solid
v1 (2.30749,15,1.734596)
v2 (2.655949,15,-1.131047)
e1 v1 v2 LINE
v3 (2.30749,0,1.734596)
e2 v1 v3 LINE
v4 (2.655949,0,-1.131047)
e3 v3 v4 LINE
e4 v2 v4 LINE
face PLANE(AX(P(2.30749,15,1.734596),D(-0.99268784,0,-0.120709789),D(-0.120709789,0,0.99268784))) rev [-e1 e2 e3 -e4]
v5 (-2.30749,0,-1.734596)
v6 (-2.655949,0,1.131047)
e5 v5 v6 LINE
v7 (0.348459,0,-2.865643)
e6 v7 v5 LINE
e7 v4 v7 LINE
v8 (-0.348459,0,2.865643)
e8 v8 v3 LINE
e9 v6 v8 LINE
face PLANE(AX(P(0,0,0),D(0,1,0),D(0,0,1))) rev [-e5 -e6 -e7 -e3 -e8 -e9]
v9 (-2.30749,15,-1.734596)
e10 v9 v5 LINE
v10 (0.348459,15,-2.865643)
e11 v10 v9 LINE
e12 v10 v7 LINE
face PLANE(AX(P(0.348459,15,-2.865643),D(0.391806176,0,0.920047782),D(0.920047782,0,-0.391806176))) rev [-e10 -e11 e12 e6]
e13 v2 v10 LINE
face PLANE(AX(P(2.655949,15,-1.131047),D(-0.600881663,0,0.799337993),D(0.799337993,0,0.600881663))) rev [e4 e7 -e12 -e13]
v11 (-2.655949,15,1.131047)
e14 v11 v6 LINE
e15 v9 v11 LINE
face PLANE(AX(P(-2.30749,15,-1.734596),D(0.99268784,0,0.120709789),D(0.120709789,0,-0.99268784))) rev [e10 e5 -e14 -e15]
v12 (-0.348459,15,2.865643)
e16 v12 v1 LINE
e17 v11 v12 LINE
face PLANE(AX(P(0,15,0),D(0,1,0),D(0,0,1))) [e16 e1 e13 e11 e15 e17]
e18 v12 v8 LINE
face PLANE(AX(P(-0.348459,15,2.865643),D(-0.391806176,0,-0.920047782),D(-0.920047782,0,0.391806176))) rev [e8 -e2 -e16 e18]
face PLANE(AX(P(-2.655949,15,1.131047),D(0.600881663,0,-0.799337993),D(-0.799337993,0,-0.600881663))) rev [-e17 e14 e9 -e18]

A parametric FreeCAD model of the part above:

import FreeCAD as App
import Part
import Sketcher
Q = App.Units.Quantity


def add_polygon(sketch, points):
    """Adds a closed chain of lines whose ends are joined by coincident constraints."""
    first, n = sketch.GeometryCount, len(points)
    for a, b in zip(points, points[1:] + points[:1]):
        sketch.addGeometry(Part.LineSegment(App.Vector(*a, 0), App.Vector(*b, 0)), False)
    for i in range(n):
        sketch.addConstraint(Sketcher.Constraint("Coincident", first + i, 2, first + (i + 1) % n, 1))

doc = App.newDocument("Part")
body = doc.addObject("PartDesign::Body", "Body")

sketch1 = body.newObject("Sketcher::SketchObject", "Sketch")
sketch1.AttachmentSupport = (doc.getObject("XZ_Plane"), [""])
sketch1.MapMode = "FlatFace"
add_polygon(sketch1, [(2.30749, 1.734596), (2.655949, -1.131047), (0.348459, -2.865643), (-2.30749, -1.734596), (-2.655949, 1.131047), (-0.348459, 2.865643)])
sketch1.addConstraint([
    Sketcher.Constraint("Symmetric", 0, 2, 3, 2, -1, 1),
    Sketcher.Constraint("Symmetric", 1, 2, 4, 2, -1, 1),
    Sketcher.Constraint("Symmetric", 2, 2, 5, 2, -1, 1),
    Sketcher.Constraint("Equal", 0, 1),
    Sketcher.Constraint("Equal", 1, 2),
    Sketcher.Constraint("DistanceX", 3, 2, 0, 2, Q("5.311898 mm")),
    Sketcher.Constraint("Distance", 0, Q("2.886751 mm")),
    Sketcher.Constraint("DistanceX", -1, 1, 1, 2, Q("0.348459 mm")),
    Sketcher.Constraint("DistanceX", 2, 2, -1, 1, Q("2.30749 mm")),
])
pad1 = body.newObject("PartDesign::Pad", "Pad")
pad1.Profile = sketch1
pad1.Length = 15
pad1.Reversed = True

doc.recompute()
